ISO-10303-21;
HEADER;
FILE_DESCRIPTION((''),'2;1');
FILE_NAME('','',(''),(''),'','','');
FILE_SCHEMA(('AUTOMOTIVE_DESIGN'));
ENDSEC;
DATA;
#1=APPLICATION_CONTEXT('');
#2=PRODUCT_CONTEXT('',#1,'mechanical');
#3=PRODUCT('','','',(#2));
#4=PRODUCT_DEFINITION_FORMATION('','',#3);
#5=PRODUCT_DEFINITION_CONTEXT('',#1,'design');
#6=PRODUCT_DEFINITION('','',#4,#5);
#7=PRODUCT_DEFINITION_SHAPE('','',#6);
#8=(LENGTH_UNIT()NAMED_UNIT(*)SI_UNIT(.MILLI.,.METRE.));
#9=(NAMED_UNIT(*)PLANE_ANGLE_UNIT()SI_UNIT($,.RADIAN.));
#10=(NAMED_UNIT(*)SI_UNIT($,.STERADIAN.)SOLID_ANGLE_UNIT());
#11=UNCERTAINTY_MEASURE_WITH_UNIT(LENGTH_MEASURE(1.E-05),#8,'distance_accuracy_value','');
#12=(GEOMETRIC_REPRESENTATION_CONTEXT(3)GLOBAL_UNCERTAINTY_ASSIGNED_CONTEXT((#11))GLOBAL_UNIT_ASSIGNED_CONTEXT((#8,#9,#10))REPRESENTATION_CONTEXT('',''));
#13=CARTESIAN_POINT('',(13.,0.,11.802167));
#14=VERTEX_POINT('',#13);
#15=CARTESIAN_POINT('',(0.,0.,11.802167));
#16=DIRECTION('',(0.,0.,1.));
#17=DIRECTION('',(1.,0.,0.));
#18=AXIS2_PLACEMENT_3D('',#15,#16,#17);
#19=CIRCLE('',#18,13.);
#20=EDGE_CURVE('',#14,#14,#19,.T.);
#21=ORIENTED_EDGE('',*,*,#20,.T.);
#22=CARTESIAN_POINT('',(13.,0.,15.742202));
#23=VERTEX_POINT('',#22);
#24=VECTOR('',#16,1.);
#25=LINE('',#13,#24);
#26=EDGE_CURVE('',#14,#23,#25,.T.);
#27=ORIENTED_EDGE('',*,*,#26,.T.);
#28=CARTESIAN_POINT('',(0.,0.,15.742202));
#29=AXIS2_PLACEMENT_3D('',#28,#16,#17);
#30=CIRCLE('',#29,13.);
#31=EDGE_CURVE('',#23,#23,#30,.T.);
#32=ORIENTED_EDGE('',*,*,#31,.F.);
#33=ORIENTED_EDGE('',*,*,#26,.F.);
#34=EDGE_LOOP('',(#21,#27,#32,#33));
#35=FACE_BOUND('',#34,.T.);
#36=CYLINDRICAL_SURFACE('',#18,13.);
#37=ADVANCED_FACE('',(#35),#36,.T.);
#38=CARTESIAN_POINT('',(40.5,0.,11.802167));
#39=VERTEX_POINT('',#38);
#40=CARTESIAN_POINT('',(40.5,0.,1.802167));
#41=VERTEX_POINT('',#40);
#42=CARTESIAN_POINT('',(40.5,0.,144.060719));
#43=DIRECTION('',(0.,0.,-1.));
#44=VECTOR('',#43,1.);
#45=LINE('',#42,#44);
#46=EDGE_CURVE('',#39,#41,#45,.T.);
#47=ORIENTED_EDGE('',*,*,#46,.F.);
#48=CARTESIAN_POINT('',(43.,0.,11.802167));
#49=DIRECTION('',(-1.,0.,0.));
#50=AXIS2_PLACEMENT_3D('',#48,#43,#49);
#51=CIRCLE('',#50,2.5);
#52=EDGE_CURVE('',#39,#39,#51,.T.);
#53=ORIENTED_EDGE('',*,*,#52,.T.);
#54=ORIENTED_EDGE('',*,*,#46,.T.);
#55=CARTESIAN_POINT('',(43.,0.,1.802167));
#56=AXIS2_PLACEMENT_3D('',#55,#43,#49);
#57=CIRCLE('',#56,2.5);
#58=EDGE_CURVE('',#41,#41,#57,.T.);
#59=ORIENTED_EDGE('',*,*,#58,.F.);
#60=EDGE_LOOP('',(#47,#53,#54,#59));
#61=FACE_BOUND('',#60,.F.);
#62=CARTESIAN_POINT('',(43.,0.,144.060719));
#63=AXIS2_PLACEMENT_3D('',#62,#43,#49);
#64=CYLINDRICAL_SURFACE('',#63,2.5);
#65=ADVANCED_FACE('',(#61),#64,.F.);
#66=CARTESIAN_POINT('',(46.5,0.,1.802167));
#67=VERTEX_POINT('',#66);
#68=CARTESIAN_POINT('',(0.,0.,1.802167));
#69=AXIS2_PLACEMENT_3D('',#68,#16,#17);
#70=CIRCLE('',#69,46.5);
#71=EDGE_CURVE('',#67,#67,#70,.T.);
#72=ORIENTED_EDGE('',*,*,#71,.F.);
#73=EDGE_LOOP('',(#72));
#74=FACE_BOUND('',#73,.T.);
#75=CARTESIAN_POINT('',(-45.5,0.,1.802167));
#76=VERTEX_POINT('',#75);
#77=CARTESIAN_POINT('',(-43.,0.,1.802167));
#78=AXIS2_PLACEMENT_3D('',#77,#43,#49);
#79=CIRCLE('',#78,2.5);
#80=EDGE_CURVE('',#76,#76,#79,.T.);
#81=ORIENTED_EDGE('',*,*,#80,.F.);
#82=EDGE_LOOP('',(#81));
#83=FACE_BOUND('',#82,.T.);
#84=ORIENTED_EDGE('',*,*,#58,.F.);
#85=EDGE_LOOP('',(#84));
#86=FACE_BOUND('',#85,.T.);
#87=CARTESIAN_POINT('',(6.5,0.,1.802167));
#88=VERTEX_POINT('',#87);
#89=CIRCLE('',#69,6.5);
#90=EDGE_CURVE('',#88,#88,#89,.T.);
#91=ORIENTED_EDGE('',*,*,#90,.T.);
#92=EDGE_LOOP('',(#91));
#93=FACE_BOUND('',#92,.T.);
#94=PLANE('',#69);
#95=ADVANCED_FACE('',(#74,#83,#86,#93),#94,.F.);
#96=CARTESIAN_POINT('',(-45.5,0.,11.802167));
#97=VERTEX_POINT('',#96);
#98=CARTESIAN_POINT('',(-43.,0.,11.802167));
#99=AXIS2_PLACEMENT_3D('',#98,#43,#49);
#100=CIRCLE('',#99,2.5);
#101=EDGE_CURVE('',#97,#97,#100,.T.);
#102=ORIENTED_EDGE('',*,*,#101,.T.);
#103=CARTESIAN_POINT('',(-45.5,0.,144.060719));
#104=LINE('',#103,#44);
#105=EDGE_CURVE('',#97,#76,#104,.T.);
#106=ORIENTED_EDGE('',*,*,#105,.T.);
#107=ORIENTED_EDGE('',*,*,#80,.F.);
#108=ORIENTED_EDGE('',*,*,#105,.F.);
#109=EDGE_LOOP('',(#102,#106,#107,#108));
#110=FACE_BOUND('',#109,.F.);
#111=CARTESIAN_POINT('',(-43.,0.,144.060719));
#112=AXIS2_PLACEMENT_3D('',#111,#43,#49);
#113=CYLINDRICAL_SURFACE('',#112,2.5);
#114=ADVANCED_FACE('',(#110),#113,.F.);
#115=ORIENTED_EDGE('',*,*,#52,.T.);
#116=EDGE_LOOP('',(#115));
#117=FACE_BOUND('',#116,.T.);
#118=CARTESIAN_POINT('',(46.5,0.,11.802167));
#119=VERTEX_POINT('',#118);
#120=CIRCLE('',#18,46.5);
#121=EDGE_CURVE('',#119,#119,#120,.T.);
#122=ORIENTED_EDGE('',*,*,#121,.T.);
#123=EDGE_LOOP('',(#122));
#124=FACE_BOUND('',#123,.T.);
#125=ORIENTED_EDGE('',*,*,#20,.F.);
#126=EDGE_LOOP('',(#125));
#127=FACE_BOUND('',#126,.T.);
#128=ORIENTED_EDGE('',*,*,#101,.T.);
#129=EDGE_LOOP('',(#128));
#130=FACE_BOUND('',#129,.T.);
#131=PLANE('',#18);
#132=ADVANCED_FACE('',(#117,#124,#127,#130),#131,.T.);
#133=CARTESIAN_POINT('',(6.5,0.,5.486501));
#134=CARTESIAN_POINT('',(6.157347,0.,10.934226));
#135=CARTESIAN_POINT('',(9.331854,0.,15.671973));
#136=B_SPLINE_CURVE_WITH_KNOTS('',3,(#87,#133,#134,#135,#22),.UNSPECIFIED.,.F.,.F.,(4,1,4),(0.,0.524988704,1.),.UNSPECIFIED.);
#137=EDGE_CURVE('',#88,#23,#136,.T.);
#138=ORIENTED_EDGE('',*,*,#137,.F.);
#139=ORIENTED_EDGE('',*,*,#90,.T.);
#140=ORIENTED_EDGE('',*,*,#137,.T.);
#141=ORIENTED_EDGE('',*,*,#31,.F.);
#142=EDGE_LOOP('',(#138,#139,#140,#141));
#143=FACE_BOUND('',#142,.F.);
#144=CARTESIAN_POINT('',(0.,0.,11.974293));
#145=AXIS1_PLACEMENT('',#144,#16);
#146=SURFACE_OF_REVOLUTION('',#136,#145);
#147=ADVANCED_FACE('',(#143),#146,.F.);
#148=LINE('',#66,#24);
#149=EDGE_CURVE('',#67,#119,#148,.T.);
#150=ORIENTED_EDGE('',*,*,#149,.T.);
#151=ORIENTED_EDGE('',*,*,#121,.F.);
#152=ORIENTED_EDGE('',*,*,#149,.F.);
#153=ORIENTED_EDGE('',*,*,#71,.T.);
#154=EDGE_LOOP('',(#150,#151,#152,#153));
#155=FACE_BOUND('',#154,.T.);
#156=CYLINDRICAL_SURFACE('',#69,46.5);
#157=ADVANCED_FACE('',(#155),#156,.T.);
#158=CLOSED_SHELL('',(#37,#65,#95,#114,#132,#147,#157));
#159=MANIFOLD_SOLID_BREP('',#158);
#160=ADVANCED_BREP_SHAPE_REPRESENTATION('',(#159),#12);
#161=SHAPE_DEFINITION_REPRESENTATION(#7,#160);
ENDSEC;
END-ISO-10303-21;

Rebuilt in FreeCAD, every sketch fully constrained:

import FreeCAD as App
import Part
import Sketcher

V = App.Vector
Q = App.Units.Quantity

doc = App.newDocument("Part")
params = doc.addObject("Spreadsheet::Sheet", "Params")
for row, (alias, value) in enumerate([
    ("sketch1_width", "40 mm"),
    ("sketch1_height", "10 mm"),
    ("revolution_angle", "360 deg"),
    ("sketch2_diameter", "5 mm"),
    ("hole_diameter", "5 mm"),
], start=1):
    params.set(f"A{row}", alias)
    params.set(f"B{row}", "=" + value)
    params.setAlias(f"B{row}", alias)

body = doc.addObject("PartDesign::Body", "Body")

sketch1 = body.newObject("Sketcher::SketchObject", "Sketch")
sketch1.AttachmentSupport = (doc.getObject("XZ_Plane"), [""])
sketch1.MapMode = "FlatFace"
sketch1.addGeometry([
    Part.BSplineCurve([V(6.5, 1.802167, 0), V(6.5, 5.486501, 0), V(6.157347, 10.934226, 0), V(9.331854, 15.671973, 0), V(13, 15.742202, 0)], [4, 1, 4], [0, 0.524988704, 1], False, 3, [1, 1, 1, 1, 1], False),
    Part.LineSegment(V(6.5, 1.802167, 0), V(46.5, 1.802167, 0)),
    Part.LineSegment(V(46.5, 1.802167, 0), V(46.5, 11.802167, 0)),
    Part.LineSegment(V(46.5, 11.802167, 0), V(13, 11.802167, 0)),
    Part.LineSegment(V(13, 11.802167, 0), V(13, 15.742202, 0)),
], False)
sketch1.addConstraint([
    Sketcher.Constraint("Block", 0),
    Sketcher.Constraint("Coincident", 0, 1, 1, 1),
    Sketcher.Constraint("Coincident", 1, 2, 2, 1),
    Sketcher.Constraint("Coincident", 2, 2, 3, 1),
    Sketcher.Constraint("Coincident", 3, 2, 4, 1),
    Sketcher.Constraint("Coincident", 4, 2, 0, 2),
    Sketcher.Constraint("Horizontal", 1),
    Sketcher.Constraint("Vertical", 2),
    Sketcher.Constraint("Horizontal", 3),
    Sketcher.Constraint("Vertical", 4),
    Sketcher.Constraint("DistanceX", 1, 1, 1, 2, Q("40 mm")),
    Sketcher.Constraint("DistanceY", 2, 1, 2, 2, Q("10 mm")),
])
sketch1.setExpression("Constraints[10]", "Params.sketch1_width")
sketch1.setExpression("Constraints[11]", "Params.sketch1_height")
revolution = body.newObject("PartDesign::Revolution", "Revolution")
revolution.Profile = sketch1
revolution.ReferenceAxis = (sketch1, ["V_Axis"])
revolution.setExpression("Angle", "Params.revolution_angle")

sketch2 = body.newObject("Sketcher::SketchObject", "Sketch001")
sketch2.AttachmentSupport = (doc.getObject("XY_Plane"), [""])
sketch2.MapMode = "FlatFace"
sketch2.AttachmentOffset = App.Placement(V(0, 0, 11.802167), App.Rotation())
sketch2.addGeometry([
    Part.Circle(V(-43, 0, 0), V(0, 0, 1), 2.5),
    Part.Circle(V(43, 0, 0), V(0, 0, 1), 2.5),
], False)
sketch2.addConstraint([
    Sketcher.Constraint("Equal", 0, 1),
    Sketcher.Constraint("Symmetric", 0, 3, 1, 3, -1, 1),
    Sketcher.Constraint("PointOnObject", 0, 3, -1),
    Sketcher.Constraint("Diameter", 0, Q("5 mm")),
    Sketcher.Constraint("DistanceX", 0, 3, -1, 1, Q("43 mm")),
])
sketch2.setExpression("Constraints[3]", "Params.sketch2_diameter")
doc.recompute()
hole = body.newObject("PartDesign::Hole", "Hole")
hole.Profile = sketch2
hole.ThreadType = "None"
hole.setExpression("Diameter", "Params.hole_diameter")
hole.DepthType = "ThroughAll"

doc.recompute()
